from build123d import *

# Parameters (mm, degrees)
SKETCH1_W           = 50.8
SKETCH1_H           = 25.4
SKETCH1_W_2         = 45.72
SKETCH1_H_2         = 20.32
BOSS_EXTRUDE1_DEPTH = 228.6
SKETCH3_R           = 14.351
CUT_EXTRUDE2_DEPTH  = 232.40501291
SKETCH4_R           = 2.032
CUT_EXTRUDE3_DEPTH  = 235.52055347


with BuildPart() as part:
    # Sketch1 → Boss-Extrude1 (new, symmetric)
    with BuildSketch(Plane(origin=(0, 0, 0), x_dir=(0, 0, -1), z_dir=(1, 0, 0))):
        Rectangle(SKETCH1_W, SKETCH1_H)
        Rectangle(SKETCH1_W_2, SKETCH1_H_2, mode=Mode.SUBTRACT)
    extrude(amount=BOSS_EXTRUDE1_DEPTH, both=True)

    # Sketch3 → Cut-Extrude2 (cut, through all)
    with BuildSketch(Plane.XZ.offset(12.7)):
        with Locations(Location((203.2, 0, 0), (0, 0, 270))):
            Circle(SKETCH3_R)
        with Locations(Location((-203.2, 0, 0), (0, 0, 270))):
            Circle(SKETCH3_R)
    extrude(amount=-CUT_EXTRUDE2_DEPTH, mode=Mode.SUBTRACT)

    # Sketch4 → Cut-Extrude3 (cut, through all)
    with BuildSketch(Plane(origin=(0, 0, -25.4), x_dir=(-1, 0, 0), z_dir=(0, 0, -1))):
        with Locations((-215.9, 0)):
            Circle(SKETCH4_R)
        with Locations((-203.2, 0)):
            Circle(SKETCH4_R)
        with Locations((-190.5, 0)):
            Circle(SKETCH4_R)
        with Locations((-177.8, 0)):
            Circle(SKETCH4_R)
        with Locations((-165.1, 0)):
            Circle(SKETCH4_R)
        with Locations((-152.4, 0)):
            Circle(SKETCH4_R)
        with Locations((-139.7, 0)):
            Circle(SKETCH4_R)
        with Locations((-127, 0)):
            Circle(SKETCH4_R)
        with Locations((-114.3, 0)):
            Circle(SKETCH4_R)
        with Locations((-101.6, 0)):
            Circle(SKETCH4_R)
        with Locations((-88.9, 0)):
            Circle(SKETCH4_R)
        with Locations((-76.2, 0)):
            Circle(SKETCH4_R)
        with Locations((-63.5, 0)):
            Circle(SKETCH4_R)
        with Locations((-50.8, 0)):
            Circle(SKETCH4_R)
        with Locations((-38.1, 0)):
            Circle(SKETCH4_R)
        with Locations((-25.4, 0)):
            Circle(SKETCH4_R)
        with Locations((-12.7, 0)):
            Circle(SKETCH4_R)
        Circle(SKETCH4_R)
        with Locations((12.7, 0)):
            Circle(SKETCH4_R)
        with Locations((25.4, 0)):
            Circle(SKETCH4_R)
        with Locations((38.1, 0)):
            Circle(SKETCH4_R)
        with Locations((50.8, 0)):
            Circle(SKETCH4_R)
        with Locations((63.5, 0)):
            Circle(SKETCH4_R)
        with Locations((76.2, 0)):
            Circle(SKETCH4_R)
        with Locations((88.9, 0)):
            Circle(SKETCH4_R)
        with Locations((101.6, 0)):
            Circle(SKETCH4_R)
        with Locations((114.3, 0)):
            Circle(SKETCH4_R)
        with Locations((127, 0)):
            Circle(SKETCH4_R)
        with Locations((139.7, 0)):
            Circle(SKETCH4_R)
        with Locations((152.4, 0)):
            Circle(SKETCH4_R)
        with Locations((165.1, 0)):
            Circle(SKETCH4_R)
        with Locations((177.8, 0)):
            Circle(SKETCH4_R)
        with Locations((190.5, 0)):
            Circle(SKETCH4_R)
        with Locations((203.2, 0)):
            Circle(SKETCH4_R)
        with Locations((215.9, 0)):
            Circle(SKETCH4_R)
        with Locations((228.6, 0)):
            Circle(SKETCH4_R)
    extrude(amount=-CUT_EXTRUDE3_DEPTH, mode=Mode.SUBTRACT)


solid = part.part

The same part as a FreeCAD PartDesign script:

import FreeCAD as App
import Part
import Sketcher

V = App.Vector
Q = App.Units.Quantity

doc = App.newDocument("Part")
body = doc.addObject("PartDesign::Body", "Body")

# Sketch on YZ plane
sketch1 = doc.addObject("Sketcher::SketchObject", "Sketch")
body.addObject(sketch1)
sketch1.AttachmentSupport = (doc.YZ_Plane, [""])
sketch1.MapMode = "FlatFace"
sketch1.addGeometry(Part.LineSegment(V(13, 25, 0), V(-13, 25, 0)), False)
sketch1.addGeometry(Part.LineSegment(V(-13, 25, 0), V(-13, -25, 0)), False)
sketch1.addGeometry(Part.LineSegment(V(-13, -25, 0), V(13, -25, 0)), False)
sketch1.addGeometry(Part.LineSegment(V(13, -25, 0), V(13, 25, 0)), False)
sketch1.addGeometry(Part.LineSegment(V(-10, -23, 0), V(-10, 23, 0)), False)
sketch1.addGeometry(Part.LineSegment(V(-10, 23, 0), V(10, 23, 0)), False)
sketch1.addGeometry(Part.LineSegment(V(10, 23, 0), V(10, -23, 0)), False)
sketch1.addGeometry(Part.LineSegment(V(10, -23, 0), V(-10, -23, 0)), False)
sketch1.addConstraint(Sketcher.Constraint("Coincident", 0, 2, 1, 1))
sketch1.addConstraint(Sketcher.Constraint("Coincident", 1, 2, 2, 1))
sketch1.addConstraint(Sketcher.Constraint("Coincident", 2, 2, 3, 1))
sketch1.addConstraint(Sketcher.Constraint("Coincident", 3, 2, 0, 1))
sketch1.addConstraint(Sketcher.Constraint("Coincident", 4, 2, 5, 1))
sketch1.addConstraint(Sketcher.Constraint("Coincident", 5, 2, 6, 1))
sketch1.addConstraint(Sketcher.Constraint("Coincident", 6, 2, 7, 1))
sketch1.addConstraint(Sketcher.Constraint("Coincident", 7, 2, 4, 1))
sketch1.addConstraint(Sketcher.Constraint("Horizontal", 0))
sketch1.addConstraint(Sketcher.Constraint("Vertical", 1))
sketch1.addConstraint(Sketcher.Constraint("Horizontal", 2))
sketch1.addConstraint(Sketcher.Constraint("Vertical", 3))
sketch1.addConstraint(Sketcher.Constraint("Vertical", 4))
sketch1.addConstraint(Sketcher.Constraint("Horizontal", 5))
sketch1.addConstraint(Sketcher.Constraint("Vertical", 6))
sketch1.addConstraint(Sketcher.Constraint("Horizontal", 7))
sketch1.addConstraint(Sketcher.Constraint("Symmetric", 0, 2, 2, 2, -1, 1))
sketch1.addConstraint(Sketcher.Constraint("Symmetric", 4, 2, 6, 2, -1, 1))
sketch1.addConstraint(Sketcher.Constraint("DistanceX", 0, 2, 0, 1, Q("1 in")))
sketch1.addConstraint(Sketcher.Constraint("DistanceY", 1, 2, 1, 1, Q("2 in")))
sketch1.addConstraint(Sketcher.Constraint("DistanceX", 5, 1, 5, 2, Q("0.8 in")))
sketch1.addConstraint(Sketcher.Constraint("DistanceY", 4, 1, 4, 2, Q("1.8 in")))
pad1 = doc.addObject("PartDesign::Pad", "Pad")
body.addObject(pad1)
pad1.Profile = sketch1
pad1.Length = Q("18 in")
pad1.Midplane = True

# Sketch on XZ plane
sketch2 = doc.addObject("Sketcher::SketchObject", "Sketch001")
body.addObject(sketch2)
sketch2.AttachmentSupport = (doc.XZ_Plane, [""])
sketch2.MapMode = "FlatFace"
sketch2.AttachmentOffset = App.Placement(V(0, 0, 0.5 * 25.4), App.Rotation())
sketch2.addGeometry(Part.Circle(V(203, 0, 0), V(0, 0, 1), 14), False)
sketch2.addGeometry(Part.Circle(V(-203, 0, 0), V(0, 0, 1), 14), False)
sketch2.addConstraint(Sketcher.Constraint("Equal", 0, 1))
sketch2.addConstraint(Sketcher.Constraint("Symmetric", 0, 3, 1, 3, -1, 1))
sketch2.addConstraint(Sketcher.Constraint("PointOnObject", 0, 3, -1))
sketch2.addConstraint(Sketcher.Constraint("Diameter", 0, Q("1.13 in")))
sketch2.addConstraint(Sketcher.Constraint("DistanceX", -1, 1, 0, 3, Q("8 in")))
pocket1 = doc.addObject("PartDesign::Pocket", "Pocket")
body.addObject(pocket1)
pocket1.Profile = sketch2
pocket1.Type = "ThroughAll"

# Sketch on XY plane
sketch3 = doc.addObject("Sketcher::SketchObject", "Sketch002")
body.addObject(sketch3)
sketch3.AttachmentSupport = (doc.XY_Plane, [""])
sketch3.MapMode = "FlatFace"
sketch3.AttachmentOffset = App.Placement(V(0, 0, -1 * 25.4), App.Rotation())
sketch3.addGeometry(Part.Circle(V(215.9, 0, 0), V(0, 0, 1), 2), False)
sketch3.addGeometry(Part.Circle(V(203.2, 0, 0), V(0, 0, 1), 2), False)
sketch3.addGeometry(Part.Circle(V(190.5, 0, 0), V(0, 0, 1), 2), False)
sketch3.addGeometry(Part.Circle(V(177.8, 0, 0), V(0, 0, 1), 2), False)
sketch3.addGeometry(Part.Circle(V(165.1, 0, 0), V(0, 0, 1), 2), False)
sketch3.addGeometry(Part.Circle(V(152.4, 0, 0), V(0, 0, 1), 2), False)
sketch3.addGeometry(Part.Circle(V(139.7, 0, 0), V(0, 0, 1), 2), False)
sketch3.addGeometry(Part.Circle(V(127, 0, 0), V(0, 0, 1), 2), False)
sketch3.addGeometry(Part.Circle(V(114.3, 0, 0), V(0, 0, 1), 2), False)
sketch3.addGeometry(Part.Circle(V(101.6, 0, 0), V(0, 0, 1), 2), False)
sketch3.addGeometry(Part.Circle(V(88.9, 0, 0), V(0, 0, 1), 2), False)
sketch3.addGeometry(Part.Circle(V(76.2, 0, 0), V(0, 0, 1), 2), False)
sketch3.addGeometry(Part.Circle(V(63.5, 0, 0), V(0, 0, 1), 2), False)
sketch3.addGeometry(Part.Circle(V(50.8, 0, 0), V(0, 0, 1), 2), False)
sketch3.addGeometry(Part.Circle(V(38.1, 0, 0), V(0, 0, 1), 2), False)
sketch3.addGeometry(Part.Circle(V(25.4, 0, 0), V(0, 0, 1), 2), False)
sketch3.addGeometry(Part.Circle(V(12.7, 0, 0), V(0, 0, 1), 2), False)
sketch3.addGeometry(Part.Circle(V(0, 0, 0), V(0, 0, 1), 2), False)
sketch3.addGeometry(Part.Circle(V(-12.7, 0, 0), V(0, 0, 1), 2), False)
sketch3.addGeometry(Part.Circle(V(-25.4, 0, 0), V(0, 0, 1), 2), False)
sketch3.addGeometry(Part.Circle(V(-38.1, 0, 0), V(0, 0, 1), 2), False)
sketch3.addGeometry(Part.Circle(V(-50.8, 0, 0), V(0, 0, 1), 2), False)
sketch3.addGeometry(Part.Circle(V(-63.5, 0, 0), V(0, 0, 1), 2), False)
sketch3.addGeometry(Part.Circle(V(-76.2, 0, 0), V(0, 0, 1), 2), False)
sketch3.addGeometry(Part.Circle(V(-88.9, 0, 0), V(0, 0, 1), 2), False)
sketch3.addGeometry(Part.Circle(V(-101.6, 0, 0), V(0, 0, 1), 2), False)
sketch3.addGeometry(Part.Circle(V(-114.3, 0, 0), V(0, 0, 1), 2), False)
sketch3.addGeometry(Part.Circle(V(-127, 0, 0), V(0, 0, 1), 2), False)
sketch3.addGeometry(Part.Circle(V(-139.7, 0, 0), V(0, 0, 1), 2), False)
sketch3.addGeometry(Part.Circle(V(-152.4, 0, 0), V(0, 0, 1), 2), False)
sketch3.addGeometry(Part.Circle(V(-165.1, 0, 0), V(0, 0, 1), 2), False)
sketch3.addGeometry(Part.Circle(V(-177.8, 0, 0), V(0, 0, 1), 2), False)
sketch3.addGeometry(Part.Circle(V(-190.5, 0, 0), V(0, 0, 1), 2), False)
sketch3.addGeometry(Part.Circle(V(-203.2, 0, 0), V(0, 0, 1), 2), False)
sketch3.addGeometry(Part.Circle(V(-215.9, 0, 0), V(0, 0, 1), 2), False)
sketch3.addGeometry(Part.Circle(V(-228.6, 0, 0), V(0, 0, 1), 2), False)
sketch3.addConstraint(Sketcher.Constraint("Coincident", 17, 3, -1, 1))
sketch3.addConstraint(Sketcher.Constraint("Equal", 0, 1))
sketch3.addConstraint(Sketcher.Constraint("Equal", 1, 2))
sketch3.addConstraint(Sketcher.Constraint("Equal", 2, 3))
sketch3.addConstraint(Sketcher.Constraint("Equal", 3, 4))
sketch3.addConstraint(Sketcher.Constraint("Equal", 4, 5))
sketch3.addConstraint(Sketcher.Constraint("Equal", 5, 6))
sketch3.addConstraint(Sketcher.Constraint("Equal", 6, 7))
sketch3.addConstraint(Sketcher.Constraint("Equal", 7, 8))
sketch3.addConstraint(Sketcher.Constraint("Equal", 8, 9))
sketch3.addConstraint(Sketcher.Constraint("Equal", 9, 10))
sketch3.addConstraint(Sketcher.Constraint("Equal", 10, 11))
sketch3.addConstraint(Sketcher.Constraint("Equal", 11, 12))
sketch3.addConstraint(Sketcher.Constraint("Equal", 12, 13))
sketch3.addConstraint(Sketcher.Constraint("Equal", 13, 14))
sketch3.addConstraint(Sketcher.Constraint("Equal", 14, 15))
sketch3.addConstraint(Sketcher.Constraint("Equal", 15, 16))
sketch3.addConstraint(Sketcher.Constraint("Equal", 16, 17))
sketch3.addConstraint(Sketcher.Constraint("Equal", 17, 18))
sketch3.addConstraint(Sketcher.Constraint("Equal", 18, 19))
sketch3.addConstraint(Sketcher.Constraint("Equal", 19, 20))
sketch3.addConstraint(Sketcher.Constraint("Equal", 20, 21))
sketch3.addConstraint(Sketcher.Constraint("Equal", 21, 22))
sketch3.addConstraint(Sketcher.Constraint("Equal", 22, 23))
sketch3.addConstraint(Sketcher.Constraint("Equal", 23, 24))
sketch3.addConstraint(Sketcher.Constraint("Equal", 24, 25))
sketch3.addConstraint(Sketcher.Constraint("Equal", 25, 26))
sketch3.addConstraint(Sketcher.Constraint("Equal", 26, 27))
sketch3.addConstraint(Sketcher.Constraint("Equal", 27, 28))
sketch3.addConstraint(Sketcher.Constraint("Equal", 28, 29))
sketch3.addConstraint(Sketcher.Constraint("Equal", 29, 30))
sketch3.addConstraint(Sketcher.Constraint("Equal", 30, 31))
sketch3.addConstraint(Sketcher.Constraint("Equal", 31, 32))
sketch3.addConstraint(Sketcher.Constraint("Equal", 32, 33))
sketch3.addConstraint(Sketcher.Constraint("Equal", 33, 34))
sketch3.addConstraint(Sketcher.Constraint("Equal", 34, 35))
sketch3.addConstraint(Sketcher.Constraint("Symmetric", 16, 3, 18, 3, -1, 1))
sketch3.addConstraint(Sketcher.Constraint("Symmetric", 15, 3, 19, 3, -1, 1))
sketch3.addConstraint(Sketcher.Constraint("Symmetric", 14, 3, 20, 3, -1, 1))
sketch3.addConstraint(Sketcher.Constraint("Symmetric", 13, 3, 21, 3, -1, 1))
sketch3.addConstraint(Sketcher.Constraint("Symmetric", 12, 3, 22, 3, -1, 1))
sketch3.addConstraint(Sketcher.Constraint("Symmetric", 11, 3, 23, 3, -1, 1))
sketch3.addConstraint(Sketcher.Constraint("Symmetric", 10, 3, 24, 3, -1, 1))
sketch3.addConstraint(Sketcher.Constraint("Symmetric", 9, 3, 25, 3, -1, 1))
sketch3.addConstraint(Sketcher.Constraint("Symmetric", 8, 3, 26, 3, -1, 1))
sketch3.addConstraint(Sketcher.Constraint("Symmetric", 7, 3, 27, 3, -1, 1))
sketch3.addConstraint(Sketcher.Constraint("Symmetric", 6, 3, 28, 3, -1, 1))
sketch3.addConstraint(Sketcher.Constraint("Symmetric", 5, 3, 29, 3, -1, 1))
sketch3.addConstraint(Sketcher.Constraint("Symmetric", 4, 3, 30, 3, -1, 1))
sketch3.addConstraint(Sketcher.Constraint("Symmetric", 3, 3, 31, 3, -1, 1))
sketch3.addConstraint(Sketcher.Constraint("Symmetric", 2, 3, 32, 3, -1, 1))
sketch3.addConstraint(Sketcher.Constraint("Symmetric", 1, 3, 33, 3, -1, 1))
sketch3.addConstraint(Sketcher.Constraint("Symmetric", 0, 3, 34, 3, -1, 1))
sketch3.addConstraint(Sketcher.Constraint("PointOnObject", 0, 3, -1))
sketch3.addConstraint(Sketcher.Constraint("PointOnObject", 1, 3, -1))
sketch3.addConstraint(Sketcher.Constraint("PointOnObject", 2, 3, -1))
sketch3.addConstraint(Sketcher.Constraint("PointOnObject", 3, 3, -1))
sketch3.addConstraint(Sketcher.Constraint("PointOnObject", 4, 3, -1))
sketch3.addConstraint(Sketcher.Constraint("PointOnObject", 5, 3, -1))
sketch3.addConstraint(Sketcher.Constraint("PointOnObject", 6, 3, -1))
sketch3.addConstraint(Sketcher.Constraint("PointOnObject", 7, 3, -1))
sketch3.addConstraint(Sketcher.Constraint("PointOnObject", 8, 3, -1))
sketch3.addConstraint(Sketcher.Constraint("PointOnObject", 9, 3, -1))
sketch3.addConstraint(Sketcher.Constraint("PointOnObject", 10, 3, -1))
sketch3.addConstraint(Sketcher.Constraint("PointOnObject", 11, 3, -1))
sketch3.addConstraint(Sketcher.Constraint("PointOnObject", 12, 3, -1))
sketch3.addConstraint(Sketcher.Constraint("PointOnObject", 13, 3, -1))
sketch3.addConstraint(Sketcher.Constraint("PointOnObject", 14, 3, -1))
sketch3.addConstraint(Sketcher.Constraint("PointOnObject", 15, 3, -1))
sketch3.addConstraint(Sketcher.Constraint("PointOnObject", 16, 3, -1))
sketch3.addConstraint(Sketcher.Constraint("PointOnObject", 35, 3, -1))
sketch3.addConstraint(Sketcher.Constraint("Diameter", 0, Q("0.16 in")))
sketch3.addConstraint(Sketcher.Constraint("DistanceX", -1, 1, 1, 3, Q("8 in")))
sketch3.addConstraint(Sketcher.Constraint("DistanceX", -1, 1, 3, 3, Q("7 in")))
sketch3.addConstraint(Sketcher.Constraint("DistanceX", -1, 1, 5, 3, Q("6 in")))
sketch3.addConstraint(Sketcher.Constraint("DistanceX", -1, 1, 7, 3, Q("5 in")))
sketch3.addConstraint(Sketcher.Constraint("DistanceX", -1, 1, 9, 3, Q("4 in")))
sketch3.addConstraint(Sketcher.Constraint("DistanceX", -1, 1, 11, 3, Q("3 in")))
sketch3.addConstraint(Sketcher.Constraint("DistanceX", -1, 1, 13, 3, Q("2 in")))
sketch3.addConstraint(Sketcher.Constraint("DistanceX", -1, 1, 15, 3, Q("1 in")))
sketch3.addConstraint(Sketcher.Constraint("DistanceX", 35, 3, -1, 1, Q("9 in")))
sketch3.addConstraint(Sketcher.Constraint("DistanceX", 2, 3, 0, 3, Q("1 in")))
sketch3.addConstraint(Sketcher.Constraint("DistanceX", 4, 3, 2, 3, Q("1 in")))
sketch3.addConstraint(Sketcher.Constraint("DistanceX", 6, 3, 4, 3, Q("1 in")))
sketch3.addConstraint(Sketcher.Constraint("DistanceX", 8, 3, 6, 3, Q("1 in")))
sketch3.addConstraint(Sketcher.Constraint("DistanceX", 10, 3, 8, 3, Q("1 in")))
sketch3.addConstraint(Sketcher.Constraint("DistanceX", 12, 3, 10, 3, Q("1 in")))
sketch3.addConstraint(Sketcher.Constraint("DistanceX", 14, 3, 12, 3, Q("1 in")))
sketch3.addConstraint(Sketcher.Constraint("DistanceX", 16, 3, 14, 3, Q("1 in")))
sketch3.addConstraint(Sketcher.Constraint("DistanceX", 18, 3, 16, 3, Q("1 in")))
pocket2 = doc.addObject("PartDesign::Pocket", "Pocket001")
body.addObject(pocket2)
pocket2.Profile = sketch3
pocket2.Type = "ThroughAll"
pocket2.Reversed = True

doc.recompute()
